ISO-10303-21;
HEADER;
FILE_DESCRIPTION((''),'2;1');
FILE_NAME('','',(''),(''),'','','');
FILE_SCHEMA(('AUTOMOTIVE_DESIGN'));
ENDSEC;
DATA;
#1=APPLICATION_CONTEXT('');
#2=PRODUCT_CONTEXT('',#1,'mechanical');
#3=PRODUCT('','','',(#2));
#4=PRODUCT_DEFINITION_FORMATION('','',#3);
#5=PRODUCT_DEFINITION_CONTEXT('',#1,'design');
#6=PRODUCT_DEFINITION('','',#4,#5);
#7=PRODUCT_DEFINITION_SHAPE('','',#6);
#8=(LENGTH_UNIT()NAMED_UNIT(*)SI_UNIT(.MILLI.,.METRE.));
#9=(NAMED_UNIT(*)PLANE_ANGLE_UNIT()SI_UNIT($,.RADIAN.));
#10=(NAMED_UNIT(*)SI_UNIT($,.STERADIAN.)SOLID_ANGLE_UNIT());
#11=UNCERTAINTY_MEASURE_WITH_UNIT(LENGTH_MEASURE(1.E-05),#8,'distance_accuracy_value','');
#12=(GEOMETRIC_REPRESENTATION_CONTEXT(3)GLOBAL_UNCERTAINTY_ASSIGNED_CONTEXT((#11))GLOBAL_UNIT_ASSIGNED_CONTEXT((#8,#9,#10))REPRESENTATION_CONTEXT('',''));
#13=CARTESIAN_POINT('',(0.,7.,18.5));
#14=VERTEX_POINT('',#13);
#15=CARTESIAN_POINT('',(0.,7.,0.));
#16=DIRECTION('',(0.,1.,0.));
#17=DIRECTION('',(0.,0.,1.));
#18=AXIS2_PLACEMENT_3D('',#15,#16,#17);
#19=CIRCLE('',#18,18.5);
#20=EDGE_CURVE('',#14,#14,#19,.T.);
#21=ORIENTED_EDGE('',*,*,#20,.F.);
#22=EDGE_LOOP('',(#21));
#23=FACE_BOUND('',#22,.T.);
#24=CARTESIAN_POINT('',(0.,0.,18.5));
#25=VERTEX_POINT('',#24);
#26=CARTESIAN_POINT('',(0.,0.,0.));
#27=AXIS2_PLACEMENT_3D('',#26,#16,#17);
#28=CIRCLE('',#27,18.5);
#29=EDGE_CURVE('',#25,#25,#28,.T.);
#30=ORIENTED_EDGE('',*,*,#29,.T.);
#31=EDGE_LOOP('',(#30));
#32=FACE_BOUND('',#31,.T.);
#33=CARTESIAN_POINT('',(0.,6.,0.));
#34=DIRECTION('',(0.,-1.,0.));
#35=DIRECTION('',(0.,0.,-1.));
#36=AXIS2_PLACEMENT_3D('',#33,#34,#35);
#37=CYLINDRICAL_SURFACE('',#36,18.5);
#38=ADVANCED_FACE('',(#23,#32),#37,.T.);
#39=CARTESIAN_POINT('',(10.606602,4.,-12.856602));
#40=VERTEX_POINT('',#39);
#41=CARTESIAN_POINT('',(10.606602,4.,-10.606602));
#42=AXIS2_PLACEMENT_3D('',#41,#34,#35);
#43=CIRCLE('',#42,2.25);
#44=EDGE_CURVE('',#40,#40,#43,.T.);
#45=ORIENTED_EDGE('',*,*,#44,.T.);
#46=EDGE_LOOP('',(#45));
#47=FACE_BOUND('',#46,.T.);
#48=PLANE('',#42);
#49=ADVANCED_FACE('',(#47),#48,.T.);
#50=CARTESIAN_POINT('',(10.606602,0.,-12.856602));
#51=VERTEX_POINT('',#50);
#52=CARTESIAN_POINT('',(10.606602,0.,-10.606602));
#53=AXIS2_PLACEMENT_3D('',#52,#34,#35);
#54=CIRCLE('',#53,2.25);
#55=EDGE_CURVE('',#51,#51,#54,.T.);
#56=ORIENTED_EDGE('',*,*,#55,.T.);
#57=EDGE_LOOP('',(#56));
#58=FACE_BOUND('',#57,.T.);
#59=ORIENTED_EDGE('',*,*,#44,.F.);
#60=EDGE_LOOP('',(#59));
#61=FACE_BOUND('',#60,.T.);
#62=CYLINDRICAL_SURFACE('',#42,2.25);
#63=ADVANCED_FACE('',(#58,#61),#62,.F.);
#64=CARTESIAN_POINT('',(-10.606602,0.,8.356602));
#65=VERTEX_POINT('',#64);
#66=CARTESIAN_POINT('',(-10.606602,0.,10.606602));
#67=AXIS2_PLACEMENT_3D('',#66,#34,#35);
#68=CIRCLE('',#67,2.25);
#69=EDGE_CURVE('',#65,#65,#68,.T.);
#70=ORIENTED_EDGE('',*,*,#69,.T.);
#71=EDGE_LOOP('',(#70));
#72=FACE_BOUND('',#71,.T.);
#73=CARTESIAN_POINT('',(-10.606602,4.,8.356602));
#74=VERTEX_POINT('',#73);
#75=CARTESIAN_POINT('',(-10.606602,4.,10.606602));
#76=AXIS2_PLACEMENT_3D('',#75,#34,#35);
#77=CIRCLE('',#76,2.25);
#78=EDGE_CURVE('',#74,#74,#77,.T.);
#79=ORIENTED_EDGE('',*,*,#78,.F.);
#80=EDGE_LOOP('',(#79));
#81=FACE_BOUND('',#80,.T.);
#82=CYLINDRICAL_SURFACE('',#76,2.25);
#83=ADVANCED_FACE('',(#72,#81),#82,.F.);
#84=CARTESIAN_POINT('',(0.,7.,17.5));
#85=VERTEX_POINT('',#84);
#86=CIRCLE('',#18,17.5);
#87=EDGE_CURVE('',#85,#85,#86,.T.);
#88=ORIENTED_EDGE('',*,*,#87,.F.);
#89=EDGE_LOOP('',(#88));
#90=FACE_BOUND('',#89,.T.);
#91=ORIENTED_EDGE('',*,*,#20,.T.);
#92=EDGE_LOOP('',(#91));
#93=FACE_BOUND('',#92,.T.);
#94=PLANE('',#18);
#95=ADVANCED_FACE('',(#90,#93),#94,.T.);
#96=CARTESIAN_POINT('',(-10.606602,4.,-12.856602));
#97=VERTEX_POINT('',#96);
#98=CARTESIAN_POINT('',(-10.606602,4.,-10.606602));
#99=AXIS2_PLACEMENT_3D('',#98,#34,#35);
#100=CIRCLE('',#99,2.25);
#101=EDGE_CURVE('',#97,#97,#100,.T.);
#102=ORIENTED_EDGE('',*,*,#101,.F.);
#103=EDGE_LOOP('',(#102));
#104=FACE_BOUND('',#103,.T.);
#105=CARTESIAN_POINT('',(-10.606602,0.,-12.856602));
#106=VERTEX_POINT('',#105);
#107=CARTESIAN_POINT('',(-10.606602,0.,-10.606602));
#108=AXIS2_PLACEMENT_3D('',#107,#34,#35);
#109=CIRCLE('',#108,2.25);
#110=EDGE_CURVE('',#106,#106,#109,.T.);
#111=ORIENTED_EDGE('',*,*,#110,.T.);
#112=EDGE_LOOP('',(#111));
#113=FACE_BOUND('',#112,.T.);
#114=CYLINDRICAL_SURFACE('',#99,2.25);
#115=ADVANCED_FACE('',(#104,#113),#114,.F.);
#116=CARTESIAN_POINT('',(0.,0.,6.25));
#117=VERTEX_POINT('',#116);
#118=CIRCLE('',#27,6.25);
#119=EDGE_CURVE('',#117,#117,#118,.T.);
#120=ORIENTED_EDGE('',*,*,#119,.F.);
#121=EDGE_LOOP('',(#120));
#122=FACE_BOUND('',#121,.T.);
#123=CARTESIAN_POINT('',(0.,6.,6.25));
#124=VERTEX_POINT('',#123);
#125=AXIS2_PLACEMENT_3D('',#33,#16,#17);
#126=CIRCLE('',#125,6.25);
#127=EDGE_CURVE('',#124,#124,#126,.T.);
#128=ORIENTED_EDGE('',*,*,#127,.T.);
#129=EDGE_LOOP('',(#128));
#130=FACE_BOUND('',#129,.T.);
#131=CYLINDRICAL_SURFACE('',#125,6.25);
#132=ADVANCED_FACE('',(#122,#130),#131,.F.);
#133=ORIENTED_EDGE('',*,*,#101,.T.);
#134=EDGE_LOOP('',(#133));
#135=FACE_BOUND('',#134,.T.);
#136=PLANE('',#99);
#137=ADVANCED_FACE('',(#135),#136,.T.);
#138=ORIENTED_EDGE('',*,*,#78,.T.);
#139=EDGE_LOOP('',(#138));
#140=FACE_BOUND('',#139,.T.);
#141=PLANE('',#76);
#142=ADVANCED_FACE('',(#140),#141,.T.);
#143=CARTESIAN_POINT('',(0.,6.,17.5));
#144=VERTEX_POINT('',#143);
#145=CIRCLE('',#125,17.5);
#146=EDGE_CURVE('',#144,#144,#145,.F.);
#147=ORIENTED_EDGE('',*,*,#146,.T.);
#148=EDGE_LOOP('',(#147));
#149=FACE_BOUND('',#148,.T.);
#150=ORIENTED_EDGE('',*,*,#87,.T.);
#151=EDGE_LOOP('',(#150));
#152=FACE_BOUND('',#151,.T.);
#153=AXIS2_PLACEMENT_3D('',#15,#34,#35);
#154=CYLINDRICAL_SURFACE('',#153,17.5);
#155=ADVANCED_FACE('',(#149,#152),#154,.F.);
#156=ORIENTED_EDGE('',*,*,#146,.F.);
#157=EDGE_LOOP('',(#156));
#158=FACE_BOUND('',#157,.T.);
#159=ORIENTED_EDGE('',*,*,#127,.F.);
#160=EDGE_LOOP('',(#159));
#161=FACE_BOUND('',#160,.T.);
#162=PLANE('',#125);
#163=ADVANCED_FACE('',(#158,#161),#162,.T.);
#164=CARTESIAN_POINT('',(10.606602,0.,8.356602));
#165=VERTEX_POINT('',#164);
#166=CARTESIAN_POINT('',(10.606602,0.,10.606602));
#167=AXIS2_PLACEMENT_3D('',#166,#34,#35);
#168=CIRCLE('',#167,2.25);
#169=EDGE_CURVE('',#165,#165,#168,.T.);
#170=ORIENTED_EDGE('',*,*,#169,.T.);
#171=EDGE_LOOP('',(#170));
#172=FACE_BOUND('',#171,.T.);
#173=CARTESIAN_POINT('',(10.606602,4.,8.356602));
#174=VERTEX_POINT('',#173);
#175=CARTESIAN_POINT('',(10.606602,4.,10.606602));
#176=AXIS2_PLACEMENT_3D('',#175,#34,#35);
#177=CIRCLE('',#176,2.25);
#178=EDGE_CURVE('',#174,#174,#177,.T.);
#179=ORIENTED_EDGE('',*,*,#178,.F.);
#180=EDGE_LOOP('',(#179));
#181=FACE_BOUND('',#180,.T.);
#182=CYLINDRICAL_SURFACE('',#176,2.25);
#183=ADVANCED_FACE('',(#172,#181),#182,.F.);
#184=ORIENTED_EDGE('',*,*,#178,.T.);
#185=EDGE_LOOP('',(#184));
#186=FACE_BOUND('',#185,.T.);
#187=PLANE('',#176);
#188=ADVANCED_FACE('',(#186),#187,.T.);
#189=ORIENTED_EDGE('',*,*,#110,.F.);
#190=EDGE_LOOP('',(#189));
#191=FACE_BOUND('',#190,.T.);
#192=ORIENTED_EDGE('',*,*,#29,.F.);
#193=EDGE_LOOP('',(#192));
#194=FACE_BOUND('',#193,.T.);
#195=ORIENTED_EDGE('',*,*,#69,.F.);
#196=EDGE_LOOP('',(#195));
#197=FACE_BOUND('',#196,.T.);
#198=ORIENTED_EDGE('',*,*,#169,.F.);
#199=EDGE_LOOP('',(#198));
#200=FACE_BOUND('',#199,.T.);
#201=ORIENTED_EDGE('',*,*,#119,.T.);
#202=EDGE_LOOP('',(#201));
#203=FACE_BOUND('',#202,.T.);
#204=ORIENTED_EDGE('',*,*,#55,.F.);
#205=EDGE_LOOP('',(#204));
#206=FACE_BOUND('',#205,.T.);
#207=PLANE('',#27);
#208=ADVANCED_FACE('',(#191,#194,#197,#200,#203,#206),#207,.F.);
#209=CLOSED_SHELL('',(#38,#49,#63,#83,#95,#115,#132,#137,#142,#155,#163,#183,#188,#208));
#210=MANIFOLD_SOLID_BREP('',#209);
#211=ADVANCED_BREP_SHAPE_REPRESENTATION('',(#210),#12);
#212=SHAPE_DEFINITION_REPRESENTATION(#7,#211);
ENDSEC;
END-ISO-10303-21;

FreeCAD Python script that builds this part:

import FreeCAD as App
import Part
import Sketcher
from FreeCAD import Vector
Q = App.Units.Quantity

doc = App.newDocument("Part")
body = doc.addObject("PartDesign::Body", "Body")

# Sketch on XZ plane
sketch1 = body.newObject("Sketcher::SketchObject", "Sketch")
sketch1.AttachmentSupport = (doc.getObject("XZ_Plane"), [""])
sketch1.MapMode = "FlatFace"
sketch1.addGeometry(Part.Circle(Vector(0, 0, 0), Vector(0, 0, 1), 18.5), False)
sketch1.addConstraint([
    Sketcher.Constraint("Coincident", 0, 3, -1, 1),
    Sketcher.Constraint("Diameter", 0, Q("37 mm")),
])
pad1 = body.newObject("PartDesign::Pad", "Pad")
pad1.Profile = sketch1
pad1.Length = 6
pad1.Reversed = True

# Sketch on XZ plane
sketch2 = body.newObject("Sketcher::SketchObject", "Sketch001")
sketch2.AttachmentSupport = (doc.getObject("XZ_Plane"), [""])
sketch2.MapMode = "FlatFace"
sketch2.AttachmentOffset = App.Placement(Vector(0, 0, -6), App.Rotation())
sketch2.addGeometry([
    Part.Circle(Vector(0, 0, 0), Vector(0, 0, 1), 18.5),
    Part.Circle(Vector(0, 0, 0), Vector(0, 0, 1), 17.5),
], False)
sketch2.addConstraint([
    Sketcher.Constraint("Coincident", 0, 3, -1, 1),
    Sketcher.Constraint("Coincident", 1, 3, -1, 1),
    Sketcher.Constraint("Diameter", 0, Q("37 mm")),
    Sketcher.Constraint("Diameter", 1, Q("35 mm")),
])
pad2 = body.newObject("PartDesign::Pad", "Pad001")
pad2.Profile = sketch2
pad2.Length = 1
pad2.Reversed = True

# Sketch on XZ plane
sketch3 = body.newObject("Sketcher::SketchObject", "Sketch002")
sketch3.AttachmentSupport = (doc.getObject("XZ_Plane"), [""])
sketch3.MapMode = "FlatFace"
sketch3.AttachmentOffset = App.Placement(Vector(0, 0, -6), App.Rotation())
sketch3.addGeometry(Part.Circle(Vector(0, 0, 0), Vector(0, 0, 1), 6.25), False)
sketch3.addConstraint([
    Sketcher.Constraint("Coincident", 0, 3, -1, 1),
    Sketcher.Constraint("Diameter", 0, Q("12.5 mm")),
])
doc.recompute()
hole = body.newObject("PartDesign::Hole", "Hole")
hole.Profile = sketch3
hole.ThreadType = "None"
hole.Diameter = 12.5
hole.DepthType = "ThroughAll"
hole.Reversed = True

# Sketch on XZ plane
sketch4 = body.newObject("Sketcher::SketchObject", "Sketch003")
sketch4.AttachmentSupport = (doc.getObject("XZ_Plane"), [""])
sketch4.MapMode = "FlatFace"
sketch4.addGeometry([
    Part.Circle(Vector(-10.606602, 10.606602, 0), Vector(0, 0, 1), 2.25),
    Part.Circle(Vector(10.606602, 10.606602, 0), Vector(0, 0, 1), 2.25),
    Part.Circle(Vector(10.606602, -10.606602, 0), Vector(0, 0, 1), 2.25),
    Part.Circle(Vector(-10.606602, -10.606602, 0), Vector(0, 0, 1), 2.25),
], False)
sketch4.addConstraint([
    Sketcher.Constraint("Equal", 0, 1),
    Sketcher.Constraint("Equal", 1, 2),
    Sketcher.Constraint("Equal", 2, 3),
    Sketcher.Constraint("Symmetric", 0, 3, 2, 3, -1, 1),
    Sketcher.Constraint("Symmetric", 1, 3, 3, 3, -1, 1),
    Sketcher.Constraint("Symmetric", 0, 3, 1, 3, -2),
    Sketcher.Constraint("Diameter", 0, Q("4.5 mm")),
    Sketcher.Constraint("DistanceX", 0, 3, -1, 1, Q("10.606602 mm")),
    Sketcher.Constraint("DistanceY", -1, 1, 0, 3, Q("10.606602 mm")),
])
pocket1 = body.newObject("PartDesign::Pocket", "Pocket")
pocket1.Profile = sketch4
pocket1.Length = 4

doc.recompute()
